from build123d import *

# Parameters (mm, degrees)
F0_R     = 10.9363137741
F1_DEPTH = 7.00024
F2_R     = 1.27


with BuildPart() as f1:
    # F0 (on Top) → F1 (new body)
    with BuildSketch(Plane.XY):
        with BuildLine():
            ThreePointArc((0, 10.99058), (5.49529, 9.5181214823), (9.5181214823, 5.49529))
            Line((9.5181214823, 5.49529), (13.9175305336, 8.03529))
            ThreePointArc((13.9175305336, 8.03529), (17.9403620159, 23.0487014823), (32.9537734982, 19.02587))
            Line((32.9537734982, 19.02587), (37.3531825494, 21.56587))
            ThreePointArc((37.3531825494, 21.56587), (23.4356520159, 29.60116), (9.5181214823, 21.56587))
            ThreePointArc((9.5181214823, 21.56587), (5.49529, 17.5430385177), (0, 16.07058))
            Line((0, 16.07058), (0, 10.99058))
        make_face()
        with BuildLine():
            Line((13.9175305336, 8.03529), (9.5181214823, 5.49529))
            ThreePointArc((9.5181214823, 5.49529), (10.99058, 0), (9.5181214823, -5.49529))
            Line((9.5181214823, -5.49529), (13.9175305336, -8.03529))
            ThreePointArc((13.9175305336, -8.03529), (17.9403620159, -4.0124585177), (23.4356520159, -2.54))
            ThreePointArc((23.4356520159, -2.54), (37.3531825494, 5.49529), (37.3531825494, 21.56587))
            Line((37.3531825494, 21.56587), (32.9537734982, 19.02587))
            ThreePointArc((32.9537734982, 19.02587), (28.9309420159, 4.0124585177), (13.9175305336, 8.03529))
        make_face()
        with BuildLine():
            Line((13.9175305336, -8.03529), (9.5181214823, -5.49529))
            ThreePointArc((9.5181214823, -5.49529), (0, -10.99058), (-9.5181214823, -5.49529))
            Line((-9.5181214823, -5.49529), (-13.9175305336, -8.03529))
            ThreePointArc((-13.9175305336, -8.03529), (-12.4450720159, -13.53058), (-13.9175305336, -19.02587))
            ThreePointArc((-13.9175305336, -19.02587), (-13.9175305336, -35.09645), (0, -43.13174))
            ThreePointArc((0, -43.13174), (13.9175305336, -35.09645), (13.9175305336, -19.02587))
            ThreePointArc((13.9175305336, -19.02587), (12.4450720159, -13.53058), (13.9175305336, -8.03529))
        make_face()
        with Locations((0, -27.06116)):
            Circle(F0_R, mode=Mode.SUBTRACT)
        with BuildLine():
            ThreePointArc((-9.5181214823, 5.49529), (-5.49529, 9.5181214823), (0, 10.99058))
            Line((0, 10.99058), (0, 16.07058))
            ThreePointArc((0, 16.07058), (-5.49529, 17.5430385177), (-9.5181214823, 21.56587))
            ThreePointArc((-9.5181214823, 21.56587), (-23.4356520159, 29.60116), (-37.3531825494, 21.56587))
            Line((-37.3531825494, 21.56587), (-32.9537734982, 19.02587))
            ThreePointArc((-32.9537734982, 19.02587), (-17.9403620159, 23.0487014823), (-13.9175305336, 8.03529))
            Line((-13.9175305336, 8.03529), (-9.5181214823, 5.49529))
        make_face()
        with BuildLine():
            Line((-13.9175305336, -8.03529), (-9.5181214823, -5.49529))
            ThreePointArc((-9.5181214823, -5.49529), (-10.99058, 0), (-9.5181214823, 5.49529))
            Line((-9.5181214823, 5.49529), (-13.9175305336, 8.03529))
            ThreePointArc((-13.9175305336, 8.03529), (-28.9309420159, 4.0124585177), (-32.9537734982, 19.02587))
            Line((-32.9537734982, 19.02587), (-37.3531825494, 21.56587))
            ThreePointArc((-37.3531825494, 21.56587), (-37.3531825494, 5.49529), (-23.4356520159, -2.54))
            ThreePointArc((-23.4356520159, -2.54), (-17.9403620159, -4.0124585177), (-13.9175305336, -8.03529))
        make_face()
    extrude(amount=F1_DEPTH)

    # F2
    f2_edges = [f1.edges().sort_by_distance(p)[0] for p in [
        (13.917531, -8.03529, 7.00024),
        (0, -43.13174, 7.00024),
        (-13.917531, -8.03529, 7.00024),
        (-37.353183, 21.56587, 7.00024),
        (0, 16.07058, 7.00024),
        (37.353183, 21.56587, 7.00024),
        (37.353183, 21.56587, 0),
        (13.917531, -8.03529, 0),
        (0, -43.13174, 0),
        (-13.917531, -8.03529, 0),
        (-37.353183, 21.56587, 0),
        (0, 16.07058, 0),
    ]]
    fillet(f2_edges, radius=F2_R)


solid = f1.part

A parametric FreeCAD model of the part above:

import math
import FreeCAD as App
import Part
import Sketcher
from FreeCAD import Vector
Q = App.Units.Quantity


def edges_at(feature, points):
    """Names of the edges that pass closest to the given points."""
    edges = feature.Shape.Edges
    near = lambda p: min(range(len(edges)), key=lambda i: edges[i].distToShape(Part.Vertex(*p))[0])
    return sorted({f"Edge{near(p) + 1}" for p in points})

doc = App.newDocument("Part")
body = doc.addObject("PartDesign::Body", "Body")

sketch1 = doc.addObject("Sketcher::SketchObject", "Sketch")
body.addObject(sketch1)
sketch1.AttachmentSupport = (doc.XY_Plane, [""])
sketch1.MapMode = "FlatFace"
sketch1.addGeometry([
    Part.ArcOfCircle(Part.Circle(Vector(-23, -14, 0), Vector(0, 0, 1), 11), math.radians(-30), math.radians(30)),
    Part.ArcOfCircle(Part.Circle(Vector(0, -27, 0), Vector(0, 0, 1), 16), math.radians(150), math.radians(270)),
    Part.ArcOfCircle(Part.Circle(Vector(0, -27, 0), Vector(0, 0, 1), 16), math.radians(-90), math.radians(30)),
    Part.ArcOfCircle(Part.Circle(Vector(23, -14, 0), Vector(0, 0, 1), 11), math.radians(150), math.radians(210)),
    Part.ArcOfCircle(Part.Circle(Vector(23, -14, 0), Vector(0, 0, 1), 11), math.radians(90), math.radians(150)),
    Part.ArcOfCircle(Part.Circle(Vector(23, 14, 0), Vector(0, 0, 1), 16), math.radians(-90), math.radians(150)),
    Part.ArcOfCircle(Part.Circle(Vector(0, 27, 0), Vector(0, 0, 1), 11), math.radians(-90), math.radians(-30)),
    Part.ArcOfCircle(Part.Circle(Vector(0, 27, 0), Vector(0, 0, 1), 11), math.radians(-150), math.radians(-90)),
    Part.ArcOfCircle(Part.Circle(Vector(-23, 14, 0), Vector(0, 0, 1), 16), math.radians(30), math.radians(270)),
    Part.ArcOfCircle(Part.Circle(Vector(-23, -14, 0), Vector(0, 0, 1), 11), math.radians(30), math.radians(90)),
    Part.ArcOfCircle(Part.Circle(Vector(0, 0, 0), Vector(0, 0, 1), 11), math.radians(30), math.radians(90)),
    Part.ArcOfCircle(Part.Circle(Vector(0, 0, 0), Vector(0, 0, 1), 11), math.radians(-30), math.radians(30)),
    Part.ArcOfCircle(Part.Circle(Vector(0, 0, 0), Vector(0, 0, 1), 11), math.radians(-150), math.radians(-30)),
    Part.ArcOfCircle(Part.Circle(Vector(0, 0, 0), Vector(0, 0, 1), 11), math.radians(150), math.radians(210)),
    Part.ArcOfCircle(Part.Circle(Vector(0, 0, 0), Vector(0, 0, 1), 11), math.radians(90), math.radians(150)),
    Part.Circle(Vector(-23, 14, 0), Vector(0, 0, 1), 11),
    Part.Circle(Vector(0, -27, 0), Vector(0, 0, 1), 11),
    Part.Circle(Vector(23, 14, 0), Vector(0, 0, 1), 11),
], False)
sketch1.addConstraint([
    Sketcher.Constraint("Tangent", 0, 1, 1, 1),
    Sketcher.Constraint("Tangent", 1, 2, 2, 1),
    Sketcher.Constraint("Tangent", 2, 2, 3, 2),
    Sketcher.Constraint("Tangent", 3, 1, 4, 2),
    Sketcher.Constraint("Tangent", 4, 1, 5, 1),
    Sketcher.Constraint("Tangent", 5, 2, 6, 2),
    Sketcher.Constraint("Tangent", 6, 1, 7, 2),
    Sketcher.Constraint("Tangent", 7, 1, 8, 1),
    Sketcher.Constraint("Tangent", 8, 2, 9, 2),
    Sketcher.Constraint("Tangent", 9, 1, 0, 2),
    Sketcher.Constraint("Tangent", 10, 1, 11, 2),
    Sketcher.Constraint("Tangent", 11, 1, 12, 2),
    Sketcher.Constraint("Tangent", 12, 1, 13, 2),
    Sketcher.Constraint("Tangent", 13, 1, 14, 2),
    Sketcher.Constraint("Tangent", 14, 1, 10, 2),
    Sketcher.Constraint("Coincident", 10, 3, -1, 1),
    Sketcher.Constraint("Coincident", 12, 3, -1, 1),
    Sketcher.Constraint("Coincident", 15, 3, 8, 3),
    Sketcher.Constraint("Coincident", 16, 3, 1, 3),
    Sketcher.Constraint("Coincident", 17, 3, 5, 3),
    Sketcher.Constraint("Equal", 1, 2),
    Sketcher.Constraint("Equal", 0, 3),
    Sketcher.Constraint("Equal", 3, 4),
    Sketcher.Constraint("Equal", 2, 5),
    Sketcher.Constraint("Equal", 4, 6),
    Sketcher.Constraint("Equal", 6, 7),
    Sketcher.Constraint("Equal", 5, 8),
    Sketcher.Constraint("Equal", 7, 9),
    Sketcher.Constraint("Equal", 9, 10),
    Sketcher.Constraint("Equal", 14, 15),
    Sketcher.Constraint("Equal", 15, 17),
    Sketcher.Constraint("Symmetric", 0, 3, 5, 3, -1, 1),
    Sketcher.Constraint("Symmetric", 0, 3, 3, 3, -2),
    Sketcher.Constraint("PointOnObject", 6, 3, -2),
    Sketcher.Constraint("PointOnObject", 1, 2, -2),
    Sketcher.Constraint("PointOnObject", 6, 1, -2),
    Sketcher.Constraint("PointOnObject", 14, 1, -2),
    Sketcher.Constraint("Horizontal", 3, 1, 9, 1),
    Sketcher.Constraint("Horizontal", 11, 1, 12, 1),
    Sketcher.Constraint("Horizontal", 10, 1, 13, 1),
    Sketcher.Constraint("Vertical", 2, 2, 3, 1),
    Sketcher.Constraint("Vertical", 5, 2, 10, 1),
    Sketcher.Constraint("Vertical", 10, 1, 11, 1),
    Sketcher.Constraint("Diameter", 15, Q("0.8654 in")),
    Sketcher.Constraint("DistanceY", 4, 1, -1, 1, Q("0.1 in")),
    Sketcher.Constraint("DistanceY", 3, 1, 11, 1, Q("0.1 in")),
    Sketcher.Constraint("Diameter", 16, 21.872628),
])
pad1 = doc.addObject("PartDesign::Pad", "Pad")
body.addObject(pad1)
pad1.Profile = sketch1
pad1.Length = Q("0.2756 in")
doc.recompute()

fillet = doc.addObject("PartDesign::Fillet", "Fillet")
body.addObject(fillet)
fillet.Base = (pad1, edges_at(pad1, [
    (17.94, -4.012, 7),
    (0, -43.132, 3.5),
    (-17.94, -4.012, 7),
    (-37.353, 21.566, 7),
    (0, 16.071, 3.5),
    (37.353, 21.566, 7),
    (37.353, 21.566, 0),
    (17.94, -4.012, 0),
    (0, -43.132, 3.5),
    (-17.94, -4.012, 0),
    (-37.353, 21.566, 0),
    (0, 16.071, 3.5),
]))
fillet.Radius = Q("0.05 in")

doc.recompute()
